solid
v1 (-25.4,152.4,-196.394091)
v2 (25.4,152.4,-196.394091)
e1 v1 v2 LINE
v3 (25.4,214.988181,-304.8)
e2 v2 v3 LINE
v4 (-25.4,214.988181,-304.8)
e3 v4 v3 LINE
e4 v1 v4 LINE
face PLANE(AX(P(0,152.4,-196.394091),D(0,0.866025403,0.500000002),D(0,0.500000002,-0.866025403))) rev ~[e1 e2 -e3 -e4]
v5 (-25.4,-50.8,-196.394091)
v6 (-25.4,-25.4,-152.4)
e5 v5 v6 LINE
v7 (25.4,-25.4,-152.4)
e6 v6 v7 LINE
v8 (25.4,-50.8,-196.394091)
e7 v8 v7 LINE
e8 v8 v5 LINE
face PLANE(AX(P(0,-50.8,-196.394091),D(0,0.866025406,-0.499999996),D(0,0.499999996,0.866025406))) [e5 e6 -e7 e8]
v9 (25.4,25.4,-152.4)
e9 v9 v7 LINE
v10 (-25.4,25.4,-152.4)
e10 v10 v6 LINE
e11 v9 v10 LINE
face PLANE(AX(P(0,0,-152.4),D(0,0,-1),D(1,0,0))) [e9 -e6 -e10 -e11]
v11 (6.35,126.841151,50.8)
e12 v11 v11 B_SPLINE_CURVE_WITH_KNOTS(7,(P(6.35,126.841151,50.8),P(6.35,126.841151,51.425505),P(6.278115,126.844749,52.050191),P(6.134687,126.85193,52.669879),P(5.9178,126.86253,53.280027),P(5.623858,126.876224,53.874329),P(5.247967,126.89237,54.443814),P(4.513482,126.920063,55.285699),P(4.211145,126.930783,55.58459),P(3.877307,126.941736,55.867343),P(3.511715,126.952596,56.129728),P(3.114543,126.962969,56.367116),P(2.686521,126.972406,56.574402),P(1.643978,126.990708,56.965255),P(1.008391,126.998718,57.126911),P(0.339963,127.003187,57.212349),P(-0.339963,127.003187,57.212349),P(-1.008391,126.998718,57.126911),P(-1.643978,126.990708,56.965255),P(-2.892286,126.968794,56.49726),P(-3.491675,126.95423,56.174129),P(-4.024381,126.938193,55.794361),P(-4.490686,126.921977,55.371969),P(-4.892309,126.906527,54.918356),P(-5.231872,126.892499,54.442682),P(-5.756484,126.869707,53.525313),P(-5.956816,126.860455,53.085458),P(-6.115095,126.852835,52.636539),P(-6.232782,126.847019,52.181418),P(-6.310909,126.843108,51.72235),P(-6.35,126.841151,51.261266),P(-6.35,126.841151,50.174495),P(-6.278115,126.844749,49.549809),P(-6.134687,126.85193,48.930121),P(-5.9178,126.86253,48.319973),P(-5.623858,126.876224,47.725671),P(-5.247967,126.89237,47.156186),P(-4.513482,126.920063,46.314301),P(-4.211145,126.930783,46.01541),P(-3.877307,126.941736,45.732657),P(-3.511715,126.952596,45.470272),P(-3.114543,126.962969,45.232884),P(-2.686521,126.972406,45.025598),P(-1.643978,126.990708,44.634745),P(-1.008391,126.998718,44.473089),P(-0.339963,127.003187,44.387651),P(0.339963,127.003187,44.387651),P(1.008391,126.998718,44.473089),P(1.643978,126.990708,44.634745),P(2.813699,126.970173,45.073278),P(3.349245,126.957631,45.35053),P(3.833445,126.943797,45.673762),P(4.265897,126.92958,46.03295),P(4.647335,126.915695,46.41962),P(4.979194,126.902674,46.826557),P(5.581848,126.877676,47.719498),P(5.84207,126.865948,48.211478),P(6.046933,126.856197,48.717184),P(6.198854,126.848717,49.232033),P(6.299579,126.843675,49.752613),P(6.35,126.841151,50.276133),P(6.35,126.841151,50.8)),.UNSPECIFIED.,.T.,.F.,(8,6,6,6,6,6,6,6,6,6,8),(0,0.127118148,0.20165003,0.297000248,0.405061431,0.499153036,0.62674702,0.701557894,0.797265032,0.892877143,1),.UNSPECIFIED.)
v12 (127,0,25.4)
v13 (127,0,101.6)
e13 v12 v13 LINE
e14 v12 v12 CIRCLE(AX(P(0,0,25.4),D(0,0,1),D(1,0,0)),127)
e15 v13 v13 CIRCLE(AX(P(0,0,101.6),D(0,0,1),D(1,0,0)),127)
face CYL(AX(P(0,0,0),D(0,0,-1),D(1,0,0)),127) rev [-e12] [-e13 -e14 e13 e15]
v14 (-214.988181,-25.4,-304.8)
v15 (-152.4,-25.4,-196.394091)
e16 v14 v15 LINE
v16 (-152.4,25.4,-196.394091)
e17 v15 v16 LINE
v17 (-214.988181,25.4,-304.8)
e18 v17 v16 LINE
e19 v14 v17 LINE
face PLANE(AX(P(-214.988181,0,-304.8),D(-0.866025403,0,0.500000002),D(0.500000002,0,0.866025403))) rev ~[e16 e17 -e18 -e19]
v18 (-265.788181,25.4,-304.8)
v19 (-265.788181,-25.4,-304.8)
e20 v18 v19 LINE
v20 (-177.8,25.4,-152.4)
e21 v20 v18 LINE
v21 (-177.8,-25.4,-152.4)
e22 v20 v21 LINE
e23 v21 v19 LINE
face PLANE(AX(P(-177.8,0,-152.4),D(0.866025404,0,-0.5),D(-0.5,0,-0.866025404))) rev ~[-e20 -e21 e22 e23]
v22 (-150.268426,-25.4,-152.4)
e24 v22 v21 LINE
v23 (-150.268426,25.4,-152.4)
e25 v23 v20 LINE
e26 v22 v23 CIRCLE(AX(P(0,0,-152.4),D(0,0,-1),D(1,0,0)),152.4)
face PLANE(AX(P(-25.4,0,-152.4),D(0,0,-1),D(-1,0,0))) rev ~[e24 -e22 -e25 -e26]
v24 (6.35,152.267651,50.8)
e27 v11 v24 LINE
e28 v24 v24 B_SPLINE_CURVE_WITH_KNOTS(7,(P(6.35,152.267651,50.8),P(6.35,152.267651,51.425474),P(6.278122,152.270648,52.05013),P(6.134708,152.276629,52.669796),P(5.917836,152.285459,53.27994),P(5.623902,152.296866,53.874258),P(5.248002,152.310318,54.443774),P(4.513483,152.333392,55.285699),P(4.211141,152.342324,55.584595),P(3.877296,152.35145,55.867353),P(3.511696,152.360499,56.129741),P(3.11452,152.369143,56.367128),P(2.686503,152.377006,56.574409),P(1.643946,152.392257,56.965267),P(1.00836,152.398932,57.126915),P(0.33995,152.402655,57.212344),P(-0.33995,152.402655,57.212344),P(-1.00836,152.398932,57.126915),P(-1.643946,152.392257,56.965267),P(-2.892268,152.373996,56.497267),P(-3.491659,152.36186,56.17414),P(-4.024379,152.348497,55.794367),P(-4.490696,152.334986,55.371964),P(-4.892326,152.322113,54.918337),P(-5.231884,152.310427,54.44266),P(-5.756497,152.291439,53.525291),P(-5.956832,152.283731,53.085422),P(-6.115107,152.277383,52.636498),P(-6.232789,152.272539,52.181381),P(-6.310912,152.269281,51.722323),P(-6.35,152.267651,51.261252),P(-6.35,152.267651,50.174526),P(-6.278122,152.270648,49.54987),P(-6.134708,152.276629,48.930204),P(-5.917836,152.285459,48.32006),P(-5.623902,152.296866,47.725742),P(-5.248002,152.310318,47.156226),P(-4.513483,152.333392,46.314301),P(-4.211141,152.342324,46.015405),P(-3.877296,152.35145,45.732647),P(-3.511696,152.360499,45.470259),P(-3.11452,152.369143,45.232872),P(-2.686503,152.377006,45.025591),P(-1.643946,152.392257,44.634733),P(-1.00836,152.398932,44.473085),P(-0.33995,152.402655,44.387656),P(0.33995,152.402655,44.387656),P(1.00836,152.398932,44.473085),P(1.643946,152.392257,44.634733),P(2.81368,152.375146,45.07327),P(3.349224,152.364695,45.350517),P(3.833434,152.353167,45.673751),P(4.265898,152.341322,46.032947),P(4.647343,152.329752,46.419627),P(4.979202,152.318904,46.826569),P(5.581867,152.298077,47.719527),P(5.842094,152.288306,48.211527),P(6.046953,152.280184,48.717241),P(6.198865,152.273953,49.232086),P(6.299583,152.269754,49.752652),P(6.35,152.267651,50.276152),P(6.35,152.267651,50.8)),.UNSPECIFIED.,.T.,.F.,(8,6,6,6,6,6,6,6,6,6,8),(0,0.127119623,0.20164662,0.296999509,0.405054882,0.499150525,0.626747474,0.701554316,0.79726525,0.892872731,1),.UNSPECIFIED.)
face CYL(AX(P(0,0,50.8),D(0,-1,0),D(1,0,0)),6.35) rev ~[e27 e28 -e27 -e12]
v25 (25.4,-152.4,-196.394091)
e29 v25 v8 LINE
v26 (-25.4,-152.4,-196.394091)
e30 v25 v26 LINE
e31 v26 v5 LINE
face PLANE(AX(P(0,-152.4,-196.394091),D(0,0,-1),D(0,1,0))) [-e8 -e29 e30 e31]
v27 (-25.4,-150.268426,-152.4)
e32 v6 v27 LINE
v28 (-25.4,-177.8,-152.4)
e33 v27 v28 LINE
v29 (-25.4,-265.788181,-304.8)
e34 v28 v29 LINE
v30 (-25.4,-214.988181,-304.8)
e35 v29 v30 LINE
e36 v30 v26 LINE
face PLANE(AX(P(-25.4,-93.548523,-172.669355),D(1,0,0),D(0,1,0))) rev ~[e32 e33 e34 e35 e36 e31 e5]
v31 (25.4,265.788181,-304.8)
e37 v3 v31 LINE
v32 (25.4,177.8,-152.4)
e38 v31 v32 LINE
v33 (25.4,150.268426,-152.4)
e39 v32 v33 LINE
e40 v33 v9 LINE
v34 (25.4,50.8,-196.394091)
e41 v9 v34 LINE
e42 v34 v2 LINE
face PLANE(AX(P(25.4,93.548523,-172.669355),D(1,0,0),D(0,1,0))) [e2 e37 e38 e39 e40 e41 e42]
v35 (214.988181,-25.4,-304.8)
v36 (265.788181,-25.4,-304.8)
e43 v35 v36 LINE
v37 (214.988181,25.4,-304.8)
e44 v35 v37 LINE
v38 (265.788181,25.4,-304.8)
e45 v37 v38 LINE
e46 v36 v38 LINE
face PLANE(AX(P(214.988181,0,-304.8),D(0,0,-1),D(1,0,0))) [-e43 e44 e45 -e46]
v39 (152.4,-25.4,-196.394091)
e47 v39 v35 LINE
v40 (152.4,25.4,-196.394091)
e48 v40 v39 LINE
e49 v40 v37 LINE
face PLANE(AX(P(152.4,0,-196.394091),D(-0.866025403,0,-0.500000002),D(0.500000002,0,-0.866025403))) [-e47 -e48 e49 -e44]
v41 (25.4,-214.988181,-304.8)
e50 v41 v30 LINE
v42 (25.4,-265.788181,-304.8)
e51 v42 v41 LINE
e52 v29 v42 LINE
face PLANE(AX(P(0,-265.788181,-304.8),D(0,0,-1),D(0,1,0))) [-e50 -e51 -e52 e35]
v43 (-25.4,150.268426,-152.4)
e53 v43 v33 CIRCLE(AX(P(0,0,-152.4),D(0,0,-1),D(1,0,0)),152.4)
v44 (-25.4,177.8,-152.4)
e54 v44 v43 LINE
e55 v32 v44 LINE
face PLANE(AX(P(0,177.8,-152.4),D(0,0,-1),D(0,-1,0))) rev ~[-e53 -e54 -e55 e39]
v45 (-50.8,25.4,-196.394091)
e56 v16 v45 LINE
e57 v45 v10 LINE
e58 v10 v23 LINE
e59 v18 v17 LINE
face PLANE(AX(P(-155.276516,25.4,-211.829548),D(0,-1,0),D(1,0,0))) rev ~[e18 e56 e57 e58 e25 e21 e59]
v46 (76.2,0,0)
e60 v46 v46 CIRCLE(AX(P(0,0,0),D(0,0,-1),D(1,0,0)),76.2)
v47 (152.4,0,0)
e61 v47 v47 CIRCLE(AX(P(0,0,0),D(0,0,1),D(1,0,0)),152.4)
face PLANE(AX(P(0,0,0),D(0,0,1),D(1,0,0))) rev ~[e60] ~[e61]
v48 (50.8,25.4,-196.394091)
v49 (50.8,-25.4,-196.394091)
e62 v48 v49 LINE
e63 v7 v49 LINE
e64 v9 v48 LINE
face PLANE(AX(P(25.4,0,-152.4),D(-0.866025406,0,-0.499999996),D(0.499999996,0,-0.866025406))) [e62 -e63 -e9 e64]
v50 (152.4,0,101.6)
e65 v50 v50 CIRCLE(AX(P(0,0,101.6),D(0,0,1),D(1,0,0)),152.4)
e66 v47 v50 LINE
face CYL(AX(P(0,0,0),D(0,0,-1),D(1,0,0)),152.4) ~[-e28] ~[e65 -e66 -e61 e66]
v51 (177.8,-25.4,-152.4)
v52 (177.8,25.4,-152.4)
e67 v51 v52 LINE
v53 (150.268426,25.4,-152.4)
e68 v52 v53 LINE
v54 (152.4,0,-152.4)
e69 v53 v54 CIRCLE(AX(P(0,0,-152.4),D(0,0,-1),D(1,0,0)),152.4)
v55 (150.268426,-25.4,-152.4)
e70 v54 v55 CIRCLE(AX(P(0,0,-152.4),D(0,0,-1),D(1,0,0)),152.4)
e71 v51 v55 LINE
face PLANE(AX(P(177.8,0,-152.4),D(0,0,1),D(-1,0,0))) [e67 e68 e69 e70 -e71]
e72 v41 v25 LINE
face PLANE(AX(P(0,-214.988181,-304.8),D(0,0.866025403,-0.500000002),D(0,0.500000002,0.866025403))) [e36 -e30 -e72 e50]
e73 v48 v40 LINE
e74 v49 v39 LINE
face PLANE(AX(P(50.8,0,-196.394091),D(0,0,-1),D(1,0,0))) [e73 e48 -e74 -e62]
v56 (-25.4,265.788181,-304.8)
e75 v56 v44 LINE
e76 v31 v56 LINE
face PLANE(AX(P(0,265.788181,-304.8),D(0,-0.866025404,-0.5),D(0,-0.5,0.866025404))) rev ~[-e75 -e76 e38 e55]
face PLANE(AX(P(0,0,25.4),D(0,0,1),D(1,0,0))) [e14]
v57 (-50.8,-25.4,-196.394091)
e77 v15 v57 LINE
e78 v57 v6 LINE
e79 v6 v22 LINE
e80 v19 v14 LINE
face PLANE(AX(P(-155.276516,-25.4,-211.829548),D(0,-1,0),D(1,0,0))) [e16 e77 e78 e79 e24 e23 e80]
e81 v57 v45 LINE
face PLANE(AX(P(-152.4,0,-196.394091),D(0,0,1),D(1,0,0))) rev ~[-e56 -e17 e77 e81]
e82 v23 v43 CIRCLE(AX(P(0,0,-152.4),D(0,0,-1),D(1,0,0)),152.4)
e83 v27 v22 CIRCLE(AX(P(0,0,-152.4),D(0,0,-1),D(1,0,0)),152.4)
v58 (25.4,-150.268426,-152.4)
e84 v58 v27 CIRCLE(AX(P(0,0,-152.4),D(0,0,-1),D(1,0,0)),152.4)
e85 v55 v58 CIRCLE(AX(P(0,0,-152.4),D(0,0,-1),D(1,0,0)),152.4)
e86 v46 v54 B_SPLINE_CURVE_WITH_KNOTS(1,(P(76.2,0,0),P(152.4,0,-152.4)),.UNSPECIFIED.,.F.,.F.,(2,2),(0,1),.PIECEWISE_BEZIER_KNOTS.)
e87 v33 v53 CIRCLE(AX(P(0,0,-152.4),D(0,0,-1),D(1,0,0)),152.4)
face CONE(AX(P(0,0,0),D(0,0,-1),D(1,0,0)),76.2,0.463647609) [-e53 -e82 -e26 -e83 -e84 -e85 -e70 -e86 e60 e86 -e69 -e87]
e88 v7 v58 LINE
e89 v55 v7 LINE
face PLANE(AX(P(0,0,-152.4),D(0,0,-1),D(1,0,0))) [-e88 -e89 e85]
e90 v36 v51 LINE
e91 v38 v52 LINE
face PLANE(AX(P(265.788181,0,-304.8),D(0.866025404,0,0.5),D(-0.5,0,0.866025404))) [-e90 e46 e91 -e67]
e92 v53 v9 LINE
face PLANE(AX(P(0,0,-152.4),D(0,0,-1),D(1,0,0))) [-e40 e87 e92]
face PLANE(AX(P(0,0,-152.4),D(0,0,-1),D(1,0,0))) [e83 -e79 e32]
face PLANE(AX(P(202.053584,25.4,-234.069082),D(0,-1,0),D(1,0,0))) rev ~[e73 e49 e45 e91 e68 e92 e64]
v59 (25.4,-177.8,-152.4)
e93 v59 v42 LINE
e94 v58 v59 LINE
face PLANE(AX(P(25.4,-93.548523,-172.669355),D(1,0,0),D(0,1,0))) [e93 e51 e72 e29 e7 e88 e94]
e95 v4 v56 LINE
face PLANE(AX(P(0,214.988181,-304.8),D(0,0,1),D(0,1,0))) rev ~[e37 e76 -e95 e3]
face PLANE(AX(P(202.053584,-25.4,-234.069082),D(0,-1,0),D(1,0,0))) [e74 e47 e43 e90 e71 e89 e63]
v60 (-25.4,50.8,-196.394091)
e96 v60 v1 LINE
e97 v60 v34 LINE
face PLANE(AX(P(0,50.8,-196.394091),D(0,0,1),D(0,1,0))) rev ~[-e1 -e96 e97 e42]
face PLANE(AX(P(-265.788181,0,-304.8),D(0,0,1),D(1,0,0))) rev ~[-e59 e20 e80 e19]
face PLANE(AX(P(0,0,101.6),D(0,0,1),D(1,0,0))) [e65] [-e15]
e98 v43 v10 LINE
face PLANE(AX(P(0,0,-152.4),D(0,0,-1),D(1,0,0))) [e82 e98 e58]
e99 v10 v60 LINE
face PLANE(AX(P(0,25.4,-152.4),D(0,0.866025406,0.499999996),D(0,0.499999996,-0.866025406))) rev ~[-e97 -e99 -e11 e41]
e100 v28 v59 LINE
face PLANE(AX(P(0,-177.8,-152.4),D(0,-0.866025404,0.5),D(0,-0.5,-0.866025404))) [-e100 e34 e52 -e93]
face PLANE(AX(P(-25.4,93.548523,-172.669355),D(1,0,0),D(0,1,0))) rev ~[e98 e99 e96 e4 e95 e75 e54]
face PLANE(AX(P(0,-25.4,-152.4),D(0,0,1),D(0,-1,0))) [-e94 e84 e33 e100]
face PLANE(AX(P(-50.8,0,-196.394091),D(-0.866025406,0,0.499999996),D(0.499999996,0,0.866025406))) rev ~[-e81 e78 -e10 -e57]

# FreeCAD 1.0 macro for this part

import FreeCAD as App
import Part
import Sketcher

V = App.Vector
Q = App.Units.Quantity

doc = App.newDocument("Part")
body = doc.addObject("PartDesign::Body", "Body")

sketch1 = body.newObject("Sketcher::SketchObject", "Sketch")
sketch1.AttachmentSupport = (doc.getObject("XY_Plane"), [""])
sketch1.MapMode = "FlatFace"
sketch1.addGeometry(Part.Circle(V(0, 0, 0), V(0, 0, 1), 127), False)
sketch1.addConstraint(Sketcher.Constraint("Coincident", 0, 3, -1, 1))
sketch1.addConstraint(Sketcher.Constraint("Diameter", 0, Q("10 in")))
pad1 = body.newObject("PartDesign::Pad", "Pad")
pad1.Profile = sketch1
pad1.Length = Q("1 in")

sketch2 = body.newObject("Sketcher::SketchObject", "Sketch001")
sketch2.AttachmentSupport = (doc.getObject("XY_Plane"), [""])
sketch2.MapMode = "FlatFace"
sketch2.addGeometry(Part.Circle(V(0, 0, 0), V(0, 0, 1), 152), False)
sketch2.addGeometry(Part.Circle(V(0, 0, 0), V(0, 0, 1), 127), False)
sketch2.addConstraint(Sketcher.Constraint("Coincident", 0, 3, -1, 1))
sketch2.addConstraint(Sketcher.Constraint("Coincident", 1, 3, -1, 1))
sketch2.addConstraint(Sketcher.Constraint("Diameter", 0, Q("12 in")))
sketch2.addConstraint(Sketcher.Constraint("Diameter", 1, Q("10 in")))
pad2 = body.newObject("PartDesign::Pad", "Pad001")
pad2.Profile = sketch2
pad2.Length = Q("4 in")

sketch3 = body.newObject("Sketcher::SketchObject", "Sketch002")
sketch3.AttachmentSupport = (doc.getObject("XZ_Plane"), [""])
sketch3.MapMode = "FlatFace"
sketch3.addGeometry(Part.Circle(V(0, 51, 0), V(0, 0, 1), 6), False)
sketch3.addConstraint(Sketcher.Constraint("PointOnObject", 0, 3, -2))
sketch3.addConstraint(Sketcher.Constraint("Diameter", 0, Q("0.5 in")))
sketch3.addConstraint(Sketcher.Constraint("DistanceY", -1, 1, 0, 3, Q("2 in")))
pocket1 = body.newObject("PartDesign::Pocket", "Pocket")
pocket1.Profile = sketch3
pocket1.Type = "ThroughAll"

sketch4 = body.newObject("Sketcher::SketchObject", "Sketch003")
sketch4.AttachmentSupport = (doc.getObject("XY_Plane"), [""])
sketch4.MapMode = "FlatFace"
sketch4.addGeometry(Part.Circle(V(0, 0, 0), V(0, 0, 1), 76), False)
sketch4.addConstraint(Sketcher.Constraint("Coincident", 0, 3, -1, 1))
sketch4.addConstraint(Sketcher.Constraint("Diameter", 0, Q("6 in")))

sketch5 = body.newObject("Sketcher::SketchObject", "Sketch004")
sketch5.AttachmentSupport = (doc.getObject("XY_Plane"), [""])
sketch5.MapMode = "FlatFace"
sketch5.AttachmentOffset = App.Placement(V(0, 0, -6 * 25.4), App.Rotation())
sketch5.addGeometry(Part.Circle(V(0, 0, 0), V(0, 0, 1), 152), False)
sketch5.addConstraint(Sketcher.Constraint("Coincident", 0, 3, -1, 1))
sketch5.addConstraint(Sketcher.Constraint("Diameter", 0, Q("12 in")))

additiveloft = body.newObject("PartDesign::AdditiveLoft", "AdditiveLoft")
additiveloft.Profile = sketch4
additiveloft.Sections = [sketch5]

sketch6 = body.newObject("Sketcher::SketchObject", "Sketch005")
sketch6.AttachmentSupport = (doc.getObject("XZ_Plane"), [""])
sketch6.MapMode = "FlatFace"
sketch6.addGeometry(Part.LineSegment(V(-51, -196, 0), V(-25, -152, 0)), False)
sketch6.addGeometry(Part.LineSegment(V(-25, -152, 0), V(-178, -152, 0)), False)
sketch6.addGeometry(Part.LineSegment(V(-178, -152, 0), V(-266, -305, 0)), False)
sketch6.addGeometry(Part.LineSegment(V(-266, -305, 0), V(-215, -305, 0)), False)
sketch6.addGeometry(Part.LineSegment(V(-215, -305, 0), V(-152, -196, 0)), False)
sketch6.addGeometry(Part.LineSegment(V(-152, -196, 0), V(-51, -196, 0)), False)
sketch6.addGeometry(Part.LineSegment(V(178, -152, 0), V(25, -152, 0)), False)
sketch6.addGeometry(Part.LineSegment(V(25, -152, 0), V(51, -196, 0)), False)
sketch6.addGeometry(Part.LineSegment(V(51, -196, 0), V(152, -196, 0)), False)
sketch6.addGeometry(Part.LineSegment(V(152, -196, 0), V(215, -305, 0)), False)
sketch6.addGeometry(Part.LineSegment(V(215, -305, 0), V(266, -305, 0)), False)
sketch6.addGeometry(Part.LineSegment(V(266, -305, 0), V(178, -152, 0)), False)
sketch6.addConstraint(Sketcher.Constraint("Coincident", 0, 2, 1, 1))
sketch6.addConstraint(Sketcher.Constraint("Coincident", 1, 2, 2, 1))
sketch6.addConstraint(Sketcher.Constraint("Coincident", 2, 2, 3, 1))
sketch6.addConstraint(Sketcher.Constraint("Coincident", 3, 2, 4, 1))
sketch6.addConstraint(Sketcher.Constraint("Coincident", 4, 2, 5, 1))
sketch6.addConstraint(Sketcher.Constraint("Coincident", 5, 2, 0, 1))
sketch6.addConstraint(Sketcher.Constraint("Coincident", 6, 2, 7, 1))
sketch6.addConstraint(Sketcher.Constraint("Coincident", 7, 2, 8, 1))
sketch6.addConstraint(Sketcher.Constraint("Coincident", 8, 2, 9, 1))
sketch6.addConstraint(Sketcher.Constraint("Coincident", 9, 2, 10, 1))
sketch6.addConstraint(Sketcher.Constraint("Coincident", 10, 2, 11, 1))
sketch6.addConstraint(Sketcher.Constraint("Coincident", 11, 2, 6, 1))
sketch6.addConstraint(Sketcher.Constraint("Horizontal", 1))
sketch6.addConstraint(Sketcher.Constraint("Horizontal", 3))
sketch6.addConstraint(Sketcher.Constraint("Horizontal", 5))
sketch6.addConstraint(Sketcher.Constraint("Horizontal", 6))
sketch6.addConstraint(Sketcher.Constraint("Horizontal", 8))
sketch6.addConstraint(Sketcher.Constraint("Horizontal", 10))
sketch6.addConstraint(Sketcher.Constraint("Symmetric", 0, 2, 6, 2, -2))
sketch6.addConstraint(Sketcher.Constraint("Symmetric", 5, 2, 7, 2, -2))
sketch6.addConstraint(Sketcher.Constraint("Symmetric", 3, 2, 9, 2, -2))
sketch6.addConstraint(Sketcher.Constraint("Parallel", 0, 2))
sketch6.addConstraint(Sketcher.Constraint("Parallel", 2, 4))
sketch6.addConstraint(Sketcher.Constraint("Parallel", 7, 9))
sketch6.addConstraint(Sketcher.Constraint("Parallel", 9, 11))
sketch6.addConstraint(Sketcher.Constraint("Equal", 1, 6))
sketch6.addConstraint(Sketcher.Constraint("DistanceX", 1, 2, 1, 1, Q("6 in")))
sketch6.addConstraint(Sketcher.Constraint("DistanceX", 3, 1, 3, 2, Q("2 in")))
sketch6.addConstraint(Sketcher.Constraint("Distance", 0, Q("2 in")))
sketch6.addConstraint(Sketcher.Constraint("DistanceX", 0, 2, -1, 1, Q("1 in")))
sketch6.addConstraint(Sketcher.Constraint("DistanceY", 0, 2, -1, 1, Q("6 in")))
sketch6.addConstraint(Sketcher.Constraint("DistanceY", 2, 2, -1, 1, Q("12 in")))
sketch6.addConstraint(Sketcher.Constraint("DistanceX", 4, 2, -1, 1, Q("6 in")))
pad3 = body.newObject("PartDesign::Pad", "Pad002")
pad3.Profile = sketch6
pad3.Length = Q("2 in")
pad3.Midplane = True

sketch7 = body.newObject("Sketcher::SketchObject", "Sketch006")
sketch7.AttachmentSupport = (doc.getObject("YZ_Plane"), [""])
sketch7.MapMode = "FlatFace"
sketch7.addGeometry(Part.LineSegment(V(25, -152, 0), V(51, -196, 0)), False)
sketch7.addGeometry(Part.LineSegment(V(51, -196, 0), V(152, -196, 0)), False)
sketch7.addGeometry(Part.LineSegment(V(152, -196, 0), V(215, -305, 0)), False)
sketch7.addGeometry(Part.LineSegment(V(215, -305, 0), V(266, -305, 0)), False)
sketch7.addGeometry(Part.LineSegment(V(266, -305, 0), V(178, -152, 0)), False)
sketch7.addGeometry(Part.LineSegment(V(178, -152, 0), V(25, -152, 0)), False)
sketch7.addGeometry(Part.LineSegment(V(-51, -196, 0), V(-25, -152, 0)), False)
sketch7.addGeometry(Part.LineSegment(V(-25, -152, 0), V(-178, -152, 0)), False)
sketch7.addGeometry(Part.LineSegment(V(-178, -152, 0), V(-266, -305, 0)), False)
sketch7.addGeometry(Part.LineSegment(V(-266, -305, 0), V(-215, -305, 0)), False)
sketch7.addGeometry(Part.LineSegment(V(-215, -305, 0), V(-152, -196, 0)), False)
sketch7.addGeometry(Part.LineSegment(V(-152, -196, 0), V(-51, -196, 0)), False)
sketch7.addConstraint(Sketcher.Constraint("Coincident", 0, 2, 1, 1))
sketch7.addConstraint(Sketcher.Constraint("Coincident", 1, 2, 2, 1))
sketch7.addConstraint(Sketcher.Constraint("Coincident", 2, 2, 3, 1))
sketch7.addConstraint(Sketcher.Constraint("Coincident", 3, 2, 4, 1))
sketch7.addConstraint(Sketcher.Constraint("Coincident", 4, 2, 5, 1))
sketch7.addConstraint(Sketcher.Constraint("Coincident", 5, 2, 0, 1))
sketch7.addConstraint(Sketcher.Constraint("Coincident", 6, 2, 7, 1))
sketch7.addConstraint(Sketcher.Constraint("Coincident", 7, 2, 8, 1))
sketch7.addConstraint(Sketcher.Constraint("Coincident", 8, 2, 9, 1))
sketch7.addConstraint(Sketcher.Constraint("Coincident", 9, 2, 10, 1))
sketch7.addConstraint(Sketcher.Constraint("Coincident", 10, 2, 11, 1))
sketch7.addConstraint(Sketcher.Constraint("Coincident", 11, 2, 6, 1))
sketch7.addConstraint(Sketcher.Constraint("Horizontal", 1))
sketch7.addConstraint(Sketcher.Constraint("Horizontal", 3))
sketch7.addConstraint(Sketcher.Constraint("Horizontal", 5))
sketch7.addConstraint(Sketcher.Constraint("Horizontal", 7))
sketch7.addConstraint(Sketcher.Constraint("Horizontal", 9))
sketch7.addConstraint(Sketcher.Constraint("Horizontal", 11))
sketch7.addConstraint(Sketcher.Constraint("Symmetric", 5, 2, 6, 2, -2))
sketch7.addConstraint(Sketcher.Constraint("Symmetric", 3, 2, 8, 2, -2))
sketch7.addConstraint(Sketcher.Constraint("Symmetric", 1, 2, 10, 2, -2))
sketch7.addConstraint(Sketcher.Constraint("Parallel", 0, 2))
sketch7.addConstraint(Sketcher.Constraint("Parallel", 2, 4))
sketch7.addConstraint(Sketcher.Constraint("Parallel", 6, 8))
sketch7.addConstraint(Sketcher.Constraint("Parallel", 8, 10))
sketch7.addConstraint(Sketcher.Constraint("Equal", 5, 7))
sketch7.addConstraint(Sketcher.Constraint("DistanceX", 1, 1, 1, 2, Q("4 in")))
sketch7.addConstraint(Sketcher.Constraint("DistanceX", 3, 1, 3, 2, Q("2 in")))
sketch7.addConstraint(Sketcher.Constraint("Distance", 0, Q("2 in")))
sketch7.addConstraint(Sketcher.Constraint("DistanceX", -1, 1, 0, 2, Q("2 in")))
sketch7.addConstraint(Sketcher.Constraint("DistanceY", 2, 2, -1, 1, Q("12 in")))
sketch7.addConstraint(Sketcher.Constraint("DistanceX", -1, 1, 4, 2, Q("7 in")))
sketch7.addConstraint(Sketcher.Constraint("DistanceY", 4, 2, -1, 1, Q("6 in")))
pad4 = body.newObject("PartDesign::Pad", "Pad003")
pad4.Profile = sketch7
pad4.Length = Q("2 in")
pad4.Midplane = True

doc.recompute()
